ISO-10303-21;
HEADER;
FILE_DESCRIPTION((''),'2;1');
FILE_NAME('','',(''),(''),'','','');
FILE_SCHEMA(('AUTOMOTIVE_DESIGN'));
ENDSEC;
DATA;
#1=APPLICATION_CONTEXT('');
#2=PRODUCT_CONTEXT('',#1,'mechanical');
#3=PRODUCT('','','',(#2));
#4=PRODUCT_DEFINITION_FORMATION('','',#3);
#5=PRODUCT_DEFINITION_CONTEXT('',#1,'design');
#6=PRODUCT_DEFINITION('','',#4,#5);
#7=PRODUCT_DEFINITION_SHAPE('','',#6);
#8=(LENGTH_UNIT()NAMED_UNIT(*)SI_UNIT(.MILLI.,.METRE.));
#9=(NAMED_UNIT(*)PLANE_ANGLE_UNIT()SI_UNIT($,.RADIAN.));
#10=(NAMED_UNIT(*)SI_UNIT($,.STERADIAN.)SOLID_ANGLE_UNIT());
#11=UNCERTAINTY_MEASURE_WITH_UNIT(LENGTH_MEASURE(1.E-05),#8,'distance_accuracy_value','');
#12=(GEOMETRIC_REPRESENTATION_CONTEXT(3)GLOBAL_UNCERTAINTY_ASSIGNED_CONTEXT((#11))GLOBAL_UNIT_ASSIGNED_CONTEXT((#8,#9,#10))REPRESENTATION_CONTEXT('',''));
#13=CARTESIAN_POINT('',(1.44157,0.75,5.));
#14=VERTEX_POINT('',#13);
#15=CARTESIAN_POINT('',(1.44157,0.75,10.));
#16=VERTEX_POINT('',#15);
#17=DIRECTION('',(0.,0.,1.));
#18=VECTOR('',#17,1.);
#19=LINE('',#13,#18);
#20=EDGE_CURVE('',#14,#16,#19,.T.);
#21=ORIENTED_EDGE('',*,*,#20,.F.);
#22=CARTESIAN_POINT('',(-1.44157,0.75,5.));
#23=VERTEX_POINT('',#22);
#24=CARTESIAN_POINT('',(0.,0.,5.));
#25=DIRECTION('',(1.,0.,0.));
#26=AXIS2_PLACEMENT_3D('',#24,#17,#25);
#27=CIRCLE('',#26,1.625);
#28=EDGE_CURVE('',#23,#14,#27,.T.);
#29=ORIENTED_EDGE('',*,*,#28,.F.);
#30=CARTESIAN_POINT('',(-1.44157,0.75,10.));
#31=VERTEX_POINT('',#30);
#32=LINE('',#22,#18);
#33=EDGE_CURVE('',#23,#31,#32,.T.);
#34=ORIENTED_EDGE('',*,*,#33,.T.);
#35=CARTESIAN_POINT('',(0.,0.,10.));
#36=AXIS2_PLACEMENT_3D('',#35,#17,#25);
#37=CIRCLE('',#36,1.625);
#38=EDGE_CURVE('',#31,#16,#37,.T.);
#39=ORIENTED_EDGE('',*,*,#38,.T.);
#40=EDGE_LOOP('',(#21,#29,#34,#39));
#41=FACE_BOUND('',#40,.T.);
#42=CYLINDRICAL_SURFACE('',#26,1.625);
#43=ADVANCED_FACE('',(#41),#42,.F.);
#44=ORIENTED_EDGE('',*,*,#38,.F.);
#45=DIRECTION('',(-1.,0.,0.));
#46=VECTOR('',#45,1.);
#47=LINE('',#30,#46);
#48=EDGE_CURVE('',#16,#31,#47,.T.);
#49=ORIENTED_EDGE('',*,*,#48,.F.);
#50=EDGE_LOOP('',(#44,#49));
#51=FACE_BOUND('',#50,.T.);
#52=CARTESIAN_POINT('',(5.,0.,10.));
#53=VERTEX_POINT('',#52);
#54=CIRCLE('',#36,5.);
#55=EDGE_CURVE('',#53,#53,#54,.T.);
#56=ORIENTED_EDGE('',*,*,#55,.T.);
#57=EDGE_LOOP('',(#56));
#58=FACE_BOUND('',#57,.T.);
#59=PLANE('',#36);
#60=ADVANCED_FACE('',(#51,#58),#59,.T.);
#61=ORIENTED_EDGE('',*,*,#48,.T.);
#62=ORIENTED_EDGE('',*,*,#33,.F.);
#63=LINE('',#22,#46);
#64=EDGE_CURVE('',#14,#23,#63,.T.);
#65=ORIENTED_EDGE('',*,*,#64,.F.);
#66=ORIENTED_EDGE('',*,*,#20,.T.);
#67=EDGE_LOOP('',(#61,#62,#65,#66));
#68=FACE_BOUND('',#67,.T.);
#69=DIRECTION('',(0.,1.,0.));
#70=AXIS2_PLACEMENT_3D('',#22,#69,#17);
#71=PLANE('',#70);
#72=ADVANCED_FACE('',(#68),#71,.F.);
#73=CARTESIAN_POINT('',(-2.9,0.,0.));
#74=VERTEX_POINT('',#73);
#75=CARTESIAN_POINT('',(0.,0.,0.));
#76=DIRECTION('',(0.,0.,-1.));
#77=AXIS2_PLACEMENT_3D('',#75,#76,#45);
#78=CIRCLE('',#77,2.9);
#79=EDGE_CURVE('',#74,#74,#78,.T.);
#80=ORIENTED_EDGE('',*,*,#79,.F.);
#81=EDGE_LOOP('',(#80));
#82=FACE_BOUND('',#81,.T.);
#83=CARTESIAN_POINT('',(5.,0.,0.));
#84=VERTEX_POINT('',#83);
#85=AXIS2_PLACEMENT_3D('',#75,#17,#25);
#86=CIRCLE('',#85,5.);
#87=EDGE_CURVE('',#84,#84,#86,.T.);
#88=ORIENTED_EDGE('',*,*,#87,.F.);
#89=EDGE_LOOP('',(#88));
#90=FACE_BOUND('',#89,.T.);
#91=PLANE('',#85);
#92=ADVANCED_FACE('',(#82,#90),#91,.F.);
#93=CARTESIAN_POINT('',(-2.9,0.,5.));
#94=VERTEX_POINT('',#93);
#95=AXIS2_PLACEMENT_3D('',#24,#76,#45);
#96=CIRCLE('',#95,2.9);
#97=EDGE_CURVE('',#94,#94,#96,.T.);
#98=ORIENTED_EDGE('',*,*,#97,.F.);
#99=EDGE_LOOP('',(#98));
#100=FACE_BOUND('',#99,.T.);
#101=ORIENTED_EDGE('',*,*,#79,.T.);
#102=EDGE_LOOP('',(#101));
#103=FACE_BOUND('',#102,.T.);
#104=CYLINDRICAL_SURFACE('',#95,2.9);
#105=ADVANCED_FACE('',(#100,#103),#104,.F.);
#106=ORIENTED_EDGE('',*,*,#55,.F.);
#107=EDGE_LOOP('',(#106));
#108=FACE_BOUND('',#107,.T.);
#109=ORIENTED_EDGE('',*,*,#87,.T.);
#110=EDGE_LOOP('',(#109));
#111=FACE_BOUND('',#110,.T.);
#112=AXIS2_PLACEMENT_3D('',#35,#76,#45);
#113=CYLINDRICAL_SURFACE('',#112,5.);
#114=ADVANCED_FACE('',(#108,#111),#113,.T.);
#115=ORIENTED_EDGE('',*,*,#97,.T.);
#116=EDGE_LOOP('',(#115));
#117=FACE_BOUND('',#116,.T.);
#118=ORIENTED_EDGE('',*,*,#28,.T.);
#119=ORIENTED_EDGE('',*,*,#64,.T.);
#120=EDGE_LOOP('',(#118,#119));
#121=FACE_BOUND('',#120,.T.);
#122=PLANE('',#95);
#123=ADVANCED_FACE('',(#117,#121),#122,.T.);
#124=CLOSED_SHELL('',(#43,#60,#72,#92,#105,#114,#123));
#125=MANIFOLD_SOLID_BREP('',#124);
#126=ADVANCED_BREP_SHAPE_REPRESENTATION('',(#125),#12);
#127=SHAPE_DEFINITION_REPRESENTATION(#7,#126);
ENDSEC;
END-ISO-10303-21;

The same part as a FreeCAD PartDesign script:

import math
import FreeCAD as App
import Part
import Sketcher
Q = App.Units.Quantity

doc = App.newDocument("Part")
body = doc.addObject("PartDesign::Body", "Body")

# Sketch on XY plane
sketch1 = doc.addObject("Sketcher::SketchObject", "Sketch")
body.addObject(sketch1)
sketch1.AttachmentSupport = (doc.XY_Plane, [""])
sketch1.MapMode = "FlatFace"
sketch1.addGeometry(Part.Circle(App.Vector(0, 0, 0), App.Vector(0, 0, 1), 5), False)
sketch1.addConstraint([
    Sketcher.Constraint("Coincident", 0, 3, -1, 1),
    Sketcher.Constraint("Diameter", 0, Q("10 mm")),
])
pad1 = doc.addObject("PartDesign::Pad", "Pad")
body.addObject(pad1)
pad1.Profile = sketch1
pad1.Length = 10

# Sketch on XY plane
sketch2 = doc.addObject("Sketcher::SketchObject", "Sketch001")
body.addObject(sketch2)
sketch2.AttachmentSupport = (doc.XY_Plane, [""])
sketch2.MapMode = "FlatFace"
sketch2.AttachmentOffset = App.Placement(App.Vector(0, 0, 10), App.Rotation())
sketch2.addGeometry([
    Part.LineSegment(App.Vector(1.4, 0.8, 0), App.Vector(-1.4, 0.8, 0)),
    Part.ArcOfCircle(Part.Circle(App.Vector(0, 0, 0), App.Vector(0, 0, 1), 1.6), math.radians(153), math.radians(387)),
], False)
sketch2.addConstraint([
    Sketcher.Constraint("Coincident", 0, 1, 1, 2),
    Sketcher.Constraint("Coincident", 1, 1, 0, 2),
    Sketcher.Constraint("Horizontal", 0),
    Sketcher.Constraint("Coincident", 1, 3, -1, 1),
    Sketcher.Constraint("Radius", 1, Q("1.625 mm")),
    Sketcher.Constraint("DistanceY", -1, 1, 0, 1, Q("0.75 mm")),
])
pocket1 = doc.addObject("PartDesign::Pocket", "Pocket")
body.addObject(pocket1)
pocket1.Profile = sketch2
pocket1.Length = 5

# Sketch on XY plane
sketch3 = doc.addObject("Sketcher::SketchObject", "Sketch002")
body.addObject(sketch3)
sketch3.AttachmentSupport = (doc.XY_Plane, [""])
sketch3.MapMode = "FlatFace"
sketch3.addGeometry(Part.Circle(App.Vector(0, 0, 0), App.Vector(0, 0, 1), 2.9), False)
sketch3.addConstraint([
    Sketcher.Constraint("Coincident", 0, 3, -1, 1),
    Sketcher.Constraint("Diameter", 0, Q("5.8 mm")),
])
pocket2 = doc.addObject("PartDesign::Pocket", "Pocket001")
body.addObject(pocket2)
pocket2.Profile = sketch3
pocket2.Length = 5
pocket2.Reversed = True

doc.recompute()
